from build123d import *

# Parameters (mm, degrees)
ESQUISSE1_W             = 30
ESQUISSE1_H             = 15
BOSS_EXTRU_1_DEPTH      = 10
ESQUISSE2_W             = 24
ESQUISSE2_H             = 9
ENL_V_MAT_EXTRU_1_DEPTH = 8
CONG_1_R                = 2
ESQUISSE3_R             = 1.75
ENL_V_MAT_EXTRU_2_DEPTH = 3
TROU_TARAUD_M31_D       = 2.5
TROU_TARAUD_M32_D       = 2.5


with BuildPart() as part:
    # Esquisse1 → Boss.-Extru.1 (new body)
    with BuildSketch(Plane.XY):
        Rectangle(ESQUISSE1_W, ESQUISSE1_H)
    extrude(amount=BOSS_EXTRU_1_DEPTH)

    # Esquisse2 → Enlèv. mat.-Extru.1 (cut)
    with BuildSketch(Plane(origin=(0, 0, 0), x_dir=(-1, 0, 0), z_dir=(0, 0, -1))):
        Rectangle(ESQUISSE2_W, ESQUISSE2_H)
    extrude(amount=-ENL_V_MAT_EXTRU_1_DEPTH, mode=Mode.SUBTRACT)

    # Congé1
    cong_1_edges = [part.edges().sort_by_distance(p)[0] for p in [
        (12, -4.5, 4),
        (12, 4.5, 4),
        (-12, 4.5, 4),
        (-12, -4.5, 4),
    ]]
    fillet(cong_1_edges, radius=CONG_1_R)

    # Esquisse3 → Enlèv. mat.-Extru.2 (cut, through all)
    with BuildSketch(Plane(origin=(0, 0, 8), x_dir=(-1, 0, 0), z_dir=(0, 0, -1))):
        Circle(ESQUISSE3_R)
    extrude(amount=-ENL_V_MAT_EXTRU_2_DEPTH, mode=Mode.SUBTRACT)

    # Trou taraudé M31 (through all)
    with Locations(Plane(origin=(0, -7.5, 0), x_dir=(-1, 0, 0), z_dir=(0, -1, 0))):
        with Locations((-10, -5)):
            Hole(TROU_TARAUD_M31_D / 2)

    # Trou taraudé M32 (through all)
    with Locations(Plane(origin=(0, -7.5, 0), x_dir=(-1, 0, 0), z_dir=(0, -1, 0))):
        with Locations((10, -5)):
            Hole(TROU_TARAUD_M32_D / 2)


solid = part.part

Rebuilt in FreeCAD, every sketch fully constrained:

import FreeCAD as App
import Part
import Sketcher

V = App.Vector
Q = App.Units.Quantity


def edges_at(feature, points):
    """Names of the edges that pass closest to the given points."""
    edges = feature.Shape.Edges
    near = lambda p: min(range(len(edges)), key=lambda i: edges[i].distToShape(Part.Vertex(*p))[0])
    return sorted({f"Edge{near(p) + 1}" for p in points})

doc = App.newDocument("Part")
params = doc.addObject("Spreadsheet::Sheet", "Params")
for row, (alias, value) in enumerate([
    ("sketch1_width", "30 mm"),
    ("sketch1_height", "15 mm"),
    ("pad1_length", "10 mm"),
    ("sketch2_width", "24 mm"),
    ("sketch2_height", "9 mm"),
    ("pocket1_length", "8 mm"),
    ("fillet_radius", "2 mm"),
    ("sketch3_diameter", "3.5 mm"),
    ("sketch4_diameter", "2.5 mm"),
    ("hole_diameter", "2.5 mm"),
    ("sketch5_diameter", "2.5 mm"),
    ("hole2_diameter", "2.5 mm"),
], start=1):
    params.set(f"A{row}", alias)
    params.set(f"B{row}", "=" + value)
    params.setAlias(f"B{row}", alias)

body = doc.addObject("PartDesign::Body", "Body")

sketch1 = body.newObject("Sketcher::SketchObject", "Sketch")
sketch1.AttachmentSupport = (doc.getObject("XY_Plane"), [""])
sketch1.MapMode = "FlatFace"
sketch1.addGeometry(Part.LineSegment(V(-15, 7.5, 0), V(-15, -7.5, 0)), False)
sketch1.addGeometry(Part.LineSegment(V(-15, -7.5, 0), V(15, -7.5, 0)), False)
sketch1.addGeometry(Part.LineSegment(V(15, -7.5, 0), V(15, 7.5, 0)), False)
sketch1.addGeometry(Part.LineSegment(V(15, 7.5, 0), V(-15, 7.5, 0)), False)
sketch1.addConstraint(Sketcher.Constraint("Coincident", 0, 2, 1, 1))
sketch1.addConstraint(Sketcher.Constraint("Coincident", 1, 2, 2, 1))
sketch1.addConstraint(Sketcher.Constraint("Coincident", 2, 2, 3, 1))
sketch1.addConstraint(Sketcher.Constraint("Coincident", 3, 2, 0, 1))
sketch1.addConstraint(Sketcher.Constraint("Vertical", 0))
sketch1.addConstraint(Sketcher.Constraint("Horizontal", 1))
sketch1.addConstraint(Sketcher.Constraint("Vertical", 2))
sketch1.addConstraint(Sketcher.Constraint("Horizontal", 3))
sketch1.addConstraint(Sketcher.Constraint("Symmetric", 0, 2, 2, 2, -1, 1))
sketch1.addConstraint(Sketcher.Constraint("DistanceX", 1, 1, 1, 2, Q("30 mm")))
sketch1.addConstraint(Sketcher.Constraint("DistanceY", 0, 2, 0, 1, Q("15 mm")))
sketch1.setExpression("Constraints[9]", "Params.sketch1_width")
sketch1.setExpression("Constraints[10]", "Params.sketch1_height")
pad1 = body.newObject("PartDesign::Pad", "Pad")
pad1.Profile = sketch1
pad1.setExpression("Length", "Params.pad1_length")

sketch2 = body.newObject("Sketcher::SketchObject", "Sketch001")
sketch2.AttachmentSupport = (doc.getObject("XY_Plane"), [""])
sketch2.MapMode = "FlatFace"
sketch2.addGeometry(Part.LineSegment(V(12, 4.5, 0), V(12, -4.5, 0)), False)
sketch2.addGeometry(Part.LineSegment(V(12, -4.5, 0), V(-12, -4.5, 0)), False)
sketch2.addGeometry(Part.LineSegment(V(-12, -4.5, 0), V(-12, 4.5, 0)), False)
sketch2.addGeometry(Part.LineSegment(V(-12, 4.5, 0), V(12, 4.5, 0)), False)
sketch2.addConstraint(Sketcher.Constraint("Coincident", 0, 2, 1, 1))
sketch2.addConstraint(Sketcher.Constraint("Coincident", 1, 2, 2, 1))
sketch2.addConstraint(Sketcher.Constraint("Coincident", 2, 2, 3, 1))
sketch2.addConstraint(Sketcher.Constraint("Coincident", 3, 2, 0, 1))
sketch2.addConstraint(Sketcher.Constraint("Vertical", 0))
sketch2.addConstraint(Sketcher.Constraint("Horizontal", 1))
sketch2.addConstraint(Sketcher.Constraint("Vertical", 2))
sketch2.addConstraint(Sketcher.Constraint("Horizontal", 3))
sketch2.addConstraint(Sketcher.Constraint("Symmetric", 0, 2, 2, 2, -1, 1))
sketch2.addConstraint(Sketcher.Constraint("DistanceX", 1, 2, 1, 1, Q("24 mm")))
sketch2.addConstraint(Sketcher.Constraint("DistanceY", 0, 2, 0, 1, Q("9 mm")))
sketch2.setExpression("Constraints[9]", "Params.sketch2_width")
sketch2.setExpression("Constraints[10]", "Params.sketch2_height")
pocket1 = body.newObject("PartDesign::Pocket", "Pocket")
pocket1.Profile = sketch2
pocket1.setExpression("Length", "Params.pocket1_length")
pocket1.Reversed = True
doc.recompute()

fillet = body.newObject("PartDesign::Fillet", "Fillet")
fillet.Base = (pocket1, edges_at(pocket1, [
    (12, -4.5, 4),
    (12, 4.5, 4),
    (-12, 4.5, 4),
    (-12, -4.5, 4),
]))
fillet.setExpression("Radius", "Params.fillet_radius")

sketch3 = body.newObject("Sketcher::SketchObject", "Sketch002")
sketch3.AttachmentSupport = (doc.getObject("XY_Plane"), [""])
sketch3.MapMode = "FlatFace"
sketch3.AttachmentOffset = App.Placement(V(0, 0, 8), App.Rotation())
sketch3.addGeometry(Part.Circle(V(0, 0, 0), V(0, 0, 1), 1.75), False)
sketch3.addConstraint(Sketcher.Constraint("Coincident", 0, 3, -1, 1))
sketch3.addConstraint(Sketcher.Constraint("Diameter", 0, Q("3.5 mm")))
sketch3.setExpression("Constraints[1]", "Params.sketch3_diameter")
pocket2 = body.newObject("PartDesign::Pocket", "Pocket001")
pocket2.Profile = sketch3
pocket2.Type = "ThroughAll"
pocket2.Reversed = True

sketch4 = body.newObject("Sketcher::SketchObject", "Sketch003")
sketch4.AttachmentSupport = (doc.getObject("XZ_Plane"), [""])
sketch4.MapMode = "FlatFace"
sketch4.AttachmentOffset = App.Placement(V(0, 0, 7.5), App.Rotation())
sketch4.addGeometry(Part.Circle(V(10, 5, 0), V(0, 0, 1), 1.25), False)
sketch4.addConstraint(Sketcher.Constraint("Diameter", 0, Q("2.5 mm")))
sketch4.addConstraint(Sketcher.Constraint("DistanceX", -1, 1, 0, 3, Q("10 mm")))
sketch4.addConstraint(Sketcher.Constraint("DistanceY", -1, 1, 0, 3, Q("5 mm")))
sketch4.setExpression("Constraints[0]", "Params.sketch4_diameter")
doc.recompute()
hole = body.newObject("PartDesign::Hole", "Hole")
hole.Profile = sketch4
hole.ThreadType = "None"
hole.setExpression("Diameter", "Params.hole_diameter")
hole.DepthType = "ThroughAll"

sketch5 = body.newObject("Sketcher::SketchObject", "Sketch004")
sketch5.AttachmentSupport = (doc.getObject("XZ_Plane"), [""])
sketch5.MapMode = "FlatFace"
sketch5.AttachmentOffset = App.Placement(V(0, 0, 7.5), App.Rotation())
sketch5.addGeometry(Part.Circle(V(-10, 5, 0), V(0, 0, 1), 1.25), False)
sketch5.addConstraint(Sketcher.Constraint("Diameter", 0, Q("2.5 mm")))
sketch5.addConstraint(Sketcher.Constraint("DistanceX", 0, 3, -1, 1, Q("10 mm")))
sketch5.addConstraint(Sketcher.Constraint("DistanceY", -1, 1, 0, 3, Q("5 mm")))
sketch5.setExpression("Constraints[0]", "Params.sketch5_diameter")
doc.recompute()
hole2 = body.newObject("PartDesign::Hole", "Hole001")
hole2.Profile = sketch5
hole2.ThreadType = "None"
hole2.setExpression("Diameter", "Params.hole2_diameter")
hole2.DepthType = "ThroughAll"

doc.recompute()
